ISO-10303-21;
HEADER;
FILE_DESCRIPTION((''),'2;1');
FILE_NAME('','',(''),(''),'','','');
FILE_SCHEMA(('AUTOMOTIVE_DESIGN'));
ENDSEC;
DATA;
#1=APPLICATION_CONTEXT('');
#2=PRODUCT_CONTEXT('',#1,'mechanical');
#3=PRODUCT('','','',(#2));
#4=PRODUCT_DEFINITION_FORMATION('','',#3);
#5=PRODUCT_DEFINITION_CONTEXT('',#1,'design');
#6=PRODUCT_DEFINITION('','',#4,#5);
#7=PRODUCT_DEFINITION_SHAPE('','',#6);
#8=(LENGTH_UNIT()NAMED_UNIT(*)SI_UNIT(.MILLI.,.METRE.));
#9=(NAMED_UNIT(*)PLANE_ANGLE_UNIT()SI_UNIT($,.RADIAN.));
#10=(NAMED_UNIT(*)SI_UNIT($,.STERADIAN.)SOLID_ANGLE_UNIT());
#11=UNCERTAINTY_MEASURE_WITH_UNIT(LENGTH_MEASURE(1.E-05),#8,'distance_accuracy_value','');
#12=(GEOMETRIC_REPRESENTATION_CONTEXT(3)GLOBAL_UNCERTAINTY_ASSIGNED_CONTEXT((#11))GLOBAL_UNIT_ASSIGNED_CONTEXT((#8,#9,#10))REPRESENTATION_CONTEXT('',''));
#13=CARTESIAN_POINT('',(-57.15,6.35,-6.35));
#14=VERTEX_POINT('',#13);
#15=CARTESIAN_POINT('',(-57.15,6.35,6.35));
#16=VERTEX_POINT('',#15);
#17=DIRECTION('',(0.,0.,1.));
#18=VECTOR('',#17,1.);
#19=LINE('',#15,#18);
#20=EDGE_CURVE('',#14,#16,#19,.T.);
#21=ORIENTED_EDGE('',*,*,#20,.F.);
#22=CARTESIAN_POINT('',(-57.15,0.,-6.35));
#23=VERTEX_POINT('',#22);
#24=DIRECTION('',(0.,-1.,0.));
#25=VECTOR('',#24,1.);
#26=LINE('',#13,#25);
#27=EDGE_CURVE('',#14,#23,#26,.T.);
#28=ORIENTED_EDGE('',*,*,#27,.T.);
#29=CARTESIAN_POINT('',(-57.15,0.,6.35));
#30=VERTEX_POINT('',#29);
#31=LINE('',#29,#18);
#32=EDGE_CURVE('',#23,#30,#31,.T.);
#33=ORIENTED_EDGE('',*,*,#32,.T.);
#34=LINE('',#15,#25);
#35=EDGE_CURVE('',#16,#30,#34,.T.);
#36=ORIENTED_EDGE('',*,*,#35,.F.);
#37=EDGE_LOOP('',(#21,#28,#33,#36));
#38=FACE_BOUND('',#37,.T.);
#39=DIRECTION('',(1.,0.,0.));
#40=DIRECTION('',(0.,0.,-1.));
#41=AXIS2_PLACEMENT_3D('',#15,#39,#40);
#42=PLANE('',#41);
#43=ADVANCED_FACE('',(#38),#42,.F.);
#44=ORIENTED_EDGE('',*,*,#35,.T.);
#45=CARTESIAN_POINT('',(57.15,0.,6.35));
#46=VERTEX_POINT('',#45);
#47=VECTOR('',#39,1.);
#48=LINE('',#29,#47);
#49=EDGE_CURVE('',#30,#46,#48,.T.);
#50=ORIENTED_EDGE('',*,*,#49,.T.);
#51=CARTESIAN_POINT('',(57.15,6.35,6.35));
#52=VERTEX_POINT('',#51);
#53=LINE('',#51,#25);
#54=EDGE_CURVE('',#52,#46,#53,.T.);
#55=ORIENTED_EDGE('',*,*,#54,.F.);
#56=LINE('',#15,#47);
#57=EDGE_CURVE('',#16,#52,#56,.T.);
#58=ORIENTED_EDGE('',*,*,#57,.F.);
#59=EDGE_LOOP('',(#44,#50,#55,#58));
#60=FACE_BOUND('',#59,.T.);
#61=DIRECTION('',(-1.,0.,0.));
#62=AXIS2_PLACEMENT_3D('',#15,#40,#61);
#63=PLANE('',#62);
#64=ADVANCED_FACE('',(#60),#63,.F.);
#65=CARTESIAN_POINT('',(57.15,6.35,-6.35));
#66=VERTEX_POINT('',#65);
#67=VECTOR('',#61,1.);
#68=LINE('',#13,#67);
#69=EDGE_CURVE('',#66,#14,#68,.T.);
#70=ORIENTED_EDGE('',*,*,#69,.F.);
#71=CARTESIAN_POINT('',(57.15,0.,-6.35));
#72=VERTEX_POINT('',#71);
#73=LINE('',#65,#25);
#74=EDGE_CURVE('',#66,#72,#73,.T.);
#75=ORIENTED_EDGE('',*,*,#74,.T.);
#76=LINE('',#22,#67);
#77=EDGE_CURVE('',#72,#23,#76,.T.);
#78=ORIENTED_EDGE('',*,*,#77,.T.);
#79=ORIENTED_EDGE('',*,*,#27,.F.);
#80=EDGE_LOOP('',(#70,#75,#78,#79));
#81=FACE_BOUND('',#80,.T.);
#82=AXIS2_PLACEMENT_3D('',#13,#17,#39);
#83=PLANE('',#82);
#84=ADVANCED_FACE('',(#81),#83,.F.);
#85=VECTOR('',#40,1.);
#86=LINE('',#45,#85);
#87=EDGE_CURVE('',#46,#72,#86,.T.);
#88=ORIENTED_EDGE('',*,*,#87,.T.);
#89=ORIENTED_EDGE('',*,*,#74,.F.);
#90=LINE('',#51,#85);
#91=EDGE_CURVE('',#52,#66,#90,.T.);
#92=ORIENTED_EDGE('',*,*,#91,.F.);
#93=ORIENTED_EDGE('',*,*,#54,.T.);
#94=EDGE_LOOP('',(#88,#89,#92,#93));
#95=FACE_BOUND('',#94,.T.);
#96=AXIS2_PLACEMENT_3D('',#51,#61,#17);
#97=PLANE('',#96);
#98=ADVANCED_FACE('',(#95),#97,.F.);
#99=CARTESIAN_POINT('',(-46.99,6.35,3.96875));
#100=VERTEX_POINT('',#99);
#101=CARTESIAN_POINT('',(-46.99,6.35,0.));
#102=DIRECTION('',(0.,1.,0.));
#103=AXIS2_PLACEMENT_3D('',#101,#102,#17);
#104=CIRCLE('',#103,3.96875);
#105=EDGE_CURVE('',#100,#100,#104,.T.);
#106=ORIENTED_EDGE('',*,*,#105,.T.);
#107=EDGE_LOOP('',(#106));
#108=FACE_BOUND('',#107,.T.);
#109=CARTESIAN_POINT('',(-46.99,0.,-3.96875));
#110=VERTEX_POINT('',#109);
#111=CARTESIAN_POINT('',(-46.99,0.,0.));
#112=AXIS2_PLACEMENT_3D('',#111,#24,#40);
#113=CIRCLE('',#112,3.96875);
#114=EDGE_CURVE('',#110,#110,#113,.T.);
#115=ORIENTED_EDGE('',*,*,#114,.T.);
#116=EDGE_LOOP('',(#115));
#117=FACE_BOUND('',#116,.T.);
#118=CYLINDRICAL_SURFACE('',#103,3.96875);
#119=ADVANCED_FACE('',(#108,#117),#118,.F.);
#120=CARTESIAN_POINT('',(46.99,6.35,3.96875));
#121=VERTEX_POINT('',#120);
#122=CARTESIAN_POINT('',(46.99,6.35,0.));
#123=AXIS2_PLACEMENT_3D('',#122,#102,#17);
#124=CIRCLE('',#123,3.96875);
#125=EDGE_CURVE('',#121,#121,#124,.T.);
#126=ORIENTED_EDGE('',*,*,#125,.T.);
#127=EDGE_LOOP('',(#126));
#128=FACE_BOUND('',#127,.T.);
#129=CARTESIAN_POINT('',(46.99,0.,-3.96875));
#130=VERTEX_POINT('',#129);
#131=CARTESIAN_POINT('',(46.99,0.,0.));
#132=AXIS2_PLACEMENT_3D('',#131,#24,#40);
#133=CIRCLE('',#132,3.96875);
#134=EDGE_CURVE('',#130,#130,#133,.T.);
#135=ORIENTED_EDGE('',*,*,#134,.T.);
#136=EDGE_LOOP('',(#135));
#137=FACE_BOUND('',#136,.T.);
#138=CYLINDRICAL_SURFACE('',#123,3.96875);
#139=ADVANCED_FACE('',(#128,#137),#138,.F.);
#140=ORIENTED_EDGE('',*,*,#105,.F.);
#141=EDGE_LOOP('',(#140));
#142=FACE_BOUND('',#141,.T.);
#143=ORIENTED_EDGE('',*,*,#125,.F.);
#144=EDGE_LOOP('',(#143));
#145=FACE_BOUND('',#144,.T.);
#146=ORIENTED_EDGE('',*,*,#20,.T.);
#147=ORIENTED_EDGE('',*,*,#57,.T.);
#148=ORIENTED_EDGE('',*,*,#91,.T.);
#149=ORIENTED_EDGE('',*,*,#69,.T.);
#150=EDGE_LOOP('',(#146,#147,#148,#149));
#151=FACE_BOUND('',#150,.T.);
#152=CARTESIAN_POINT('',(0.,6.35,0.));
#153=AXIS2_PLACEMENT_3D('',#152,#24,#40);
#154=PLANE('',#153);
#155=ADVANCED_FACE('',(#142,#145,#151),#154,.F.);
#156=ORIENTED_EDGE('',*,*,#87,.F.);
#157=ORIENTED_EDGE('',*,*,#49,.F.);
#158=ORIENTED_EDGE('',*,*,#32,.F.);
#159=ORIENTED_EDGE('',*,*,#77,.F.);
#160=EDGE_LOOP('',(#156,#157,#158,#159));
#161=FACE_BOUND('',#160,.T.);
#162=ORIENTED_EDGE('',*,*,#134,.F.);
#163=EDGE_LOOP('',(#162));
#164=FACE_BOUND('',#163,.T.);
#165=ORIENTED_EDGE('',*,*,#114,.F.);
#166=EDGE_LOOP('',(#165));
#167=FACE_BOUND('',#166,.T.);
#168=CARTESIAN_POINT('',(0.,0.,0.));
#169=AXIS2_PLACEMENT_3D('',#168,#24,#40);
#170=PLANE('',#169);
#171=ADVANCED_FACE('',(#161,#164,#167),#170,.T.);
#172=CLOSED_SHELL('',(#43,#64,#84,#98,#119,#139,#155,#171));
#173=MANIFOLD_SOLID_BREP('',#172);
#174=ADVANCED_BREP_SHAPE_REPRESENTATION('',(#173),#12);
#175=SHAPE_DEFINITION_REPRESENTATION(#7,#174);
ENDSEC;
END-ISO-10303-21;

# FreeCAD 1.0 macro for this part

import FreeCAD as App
import Part
import Sketcher

V = App.Vector
Q = App.Units.Quantity


def add_polygon(sketch, points):
    """Adds a closed chain of lines whose ends are joined by coincident constraints."""
    first, n = sketch.GeometryCount, len(points)
    for a, b in zip(points, points[1:] + points[:1]):
        sketch.addGeometry(Part.LineSegment(App.Vector(*a, 0), App.Vector(*b, 0)), False)
    for i in range(n):
        sketch.addConstraint(Sketcher.Constraint("Coincident", first + i, 2, first + (i + 1) % n, 1))

doc = App.newDocument("Part")
body = doc.addObject("PartDesign::Body", "Body")

# Sketch on XZ plane
sketch1 = body.newObject("Sketcher::SketchObject", "Sketch")
sketch1.AttachmentSupport = (doc.getObject("XZ_Plane"), [""])
sketch1.MapMode = "FlatFace"
add_polygon(sketch1, [(-57.15, -6.35), (-57.15, 6.35), (57.15, 6.35), (57.15, -6.35)])  # lines 0-3
sketch1.addConstraint([
    Sketcher.Constraint("Vertical", 0),
    Sketcher.Constraint("Horizontal", 1),
    Sketcher.Constraint("Vertical", 2),
    Sketcher.Constraint("Horizontal", 3),
    Sketcher.Constraint("Symmetric", 0, 2, 2, 2, -1, 1),
    Sketcher.Constraint("DistanceX", 1, 1, 1, 2, Q("4.5 in")),
    Sketcher.Constraint("DistanceY", 0, 1, 0, 2, Q("0.5 in")),
])
pad1 = body.newObject("PartDesign::Pad", "Pad")
pad1.Profile = sketch1
pad1.Length = Q("0.25 in")
pad1.Reversed = True

# Sketch on XZ plane
sketch2 = body.newObject("Sketcher::SketchObject", "Sketch001")
sketch2.AttachmentSupport = (doc.getObject("XZ_Plane"), [""])
sketch2.MapMode = "FlatFace"
sketch2.AttachmentOffset = App.Placement(V(0, 0, -0.25 * 25.4), App.Rotation())
sketch2.addGeometry([
    Part.Circle(V(-46.99, 0, 0), V(0, 0, 1), 3.96875),
    Part.Circle(V(46.99, 0, 0), V(0, 0, 1), 3.96875),
], False)
sketch2.addConstraint([
    Sketcher.Constraint("Equal", 0, 1),
    Sketcher.Constraint("Symmetric", 0, 3, 1, 3, -1, 1),
    Sketcher.Constraint("PointOnObject", 0, 3, -1),
    Sketcher.Constraint("Diameter", 0, Q("0.3125 in")),
    Sketcher.Constraint("DistanceX", 0, 3, 1, 3, Q("3.7 in")),
])
doc.recompute()
hole = body.newObject("PartDesign::Hole", "Hole")
hole.Profile = sketch2
hole.ThreadType = "None"
hole.Diameter = Q("0.3125 in")
hole.DepthType = "Dimension"
hole.Depth = Q("0.59 in")
hole.DrillPoint = "Angled"
hole.DrillPointAngle = 118
hole.Reversed = True

doc.recompute()
